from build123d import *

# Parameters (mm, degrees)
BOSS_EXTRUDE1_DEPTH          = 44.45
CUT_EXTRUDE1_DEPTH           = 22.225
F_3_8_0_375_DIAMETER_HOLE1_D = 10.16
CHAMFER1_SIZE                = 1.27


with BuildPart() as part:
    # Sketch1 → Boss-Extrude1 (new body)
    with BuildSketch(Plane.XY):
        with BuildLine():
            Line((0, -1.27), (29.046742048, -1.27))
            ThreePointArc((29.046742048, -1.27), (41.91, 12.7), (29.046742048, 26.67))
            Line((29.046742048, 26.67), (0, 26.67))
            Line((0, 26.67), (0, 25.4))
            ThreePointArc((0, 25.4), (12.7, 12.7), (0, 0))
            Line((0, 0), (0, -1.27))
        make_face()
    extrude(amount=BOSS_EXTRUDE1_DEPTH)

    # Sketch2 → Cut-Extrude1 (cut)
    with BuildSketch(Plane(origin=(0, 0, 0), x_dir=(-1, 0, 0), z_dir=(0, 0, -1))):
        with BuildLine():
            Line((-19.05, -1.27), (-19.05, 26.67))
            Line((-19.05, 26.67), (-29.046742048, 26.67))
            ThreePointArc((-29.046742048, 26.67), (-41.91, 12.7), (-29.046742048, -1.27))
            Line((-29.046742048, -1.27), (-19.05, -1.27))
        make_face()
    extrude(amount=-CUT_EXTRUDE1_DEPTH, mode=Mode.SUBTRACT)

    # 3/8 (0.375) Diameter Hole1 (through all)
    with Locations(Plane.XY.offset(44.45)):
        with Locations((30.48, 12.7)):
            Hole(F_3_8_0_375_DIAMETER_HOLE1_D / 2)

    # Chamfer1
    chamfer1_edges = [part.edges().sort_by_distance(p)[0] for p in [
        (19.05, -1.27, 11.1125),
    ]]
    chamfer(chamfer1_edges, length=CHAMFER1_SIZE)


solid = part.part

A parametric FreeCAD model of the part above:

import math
import FreeCAD as App
import Part
import Sketcher
Q = App.Units.Quantity


def edges_at(feature, points):
    """Names of the edges that pass closest to the given points."""
    edges = feature.Shape.Edges
    near = lambda p: min(range(len(edges)), key=lambda i: edges[i].distToShape(Part.Vertex(*p))[0])
    return sorted({f"Edge{near(p) + 1}" for p in points})

doc = App.newDocument("Part")
params = doc.addObject("Spreadsheet::Sheet", "Params")
for row, (alias, value) in enumerate([
    ("sketch1_radius", "0.5 in"),
    ("sketch1_height", "0.05 in"),
    ("pad1_length", "1.75 in"),
    ("sketch2_height", "1.1 in"),
    ("pocket1_length", "0.875 in"),
    ("sketch3_diameter", "0.4 in"),
    ("hole_diameter", "0.4 in"),
    ("chamfer_size", "0.05 in"),
], start=1):
    params.set(f"A{row}", alias)
    params.set(f"B{row}", "=" + value)
    params.setAlias(f"B{row}", alias)

body = doc.addObject("PartDesign::Body", "Body")

sketch1 = body.newObject("Sketcher::SketchObject", "Sketch")
sketch1.AttachmentSupport = (doc.getObject("XY_Plane"), [""])
sketch1.MapMode = "FlatFace"
sketch1.addGeometry([
    Part.LineSegment(App.Vector(0, -1.3, 0), App.Vector(29, -1.3, 0)),
    Part.ArcOfCircle(Part.Circle(App.Vector(27.9, 12.7, 0), App.Vector(0, 0, 1), 14), math.radians(-85), math.radians(85)),
    Part.LineSegment(App.Vector(29, 26.7, 0), App.Vector(0, 26.7, 0)),
    Part.LineSegment(App.Vector(0, 26.7, 0), App.Vector(0, 25.4, 0)),
    Part.ArcOfCircle(Part.Circle(App.Vector(0, 12.7, 0), App.Vector(0, 0, 1), 12.7), math.radians(-90), math.radians(90)),
    Part.LineSegment(App.Vector(0, 0, 0), App.Vector(0, -1.3, 0)),
], False)
sketch1.addConstraint([
    Sketcher.Constraint("Coincident", 0, 2, 1, 1),
    Sketcher.Constraint("Coincident", 1, 2, 2, 1),
    Sketcher.Constraint("Coincident", 2, 2, 3, 1),
    Sketcher.Constraint("Coincident", 3, 2, 4, 2),
    Sketcher.Constraint("Coincident", 4, 1, 5, 1),
    Sketcher.Constraint("Coincident", 5, 2, 0, 1),
    Sketcher.Constraint("Horizontal", 0),
    Sketcher.Constraint("Horizontal", 2),
    Sketcher.Constraint("Vertical", 3),
    Sketcher.Constraint("Vertical", 5),
    Sketcher.Constraint("Coincident", 4, 1, -1, 1),
    Sketcher.Constraint("PointOnObject", 4, 3, -2),
    Sketcher.Constraint("PointOnObject", 2, 2, -2),
    Sketcher.Constraint("Horizontal", 1, 3, 4, 3),
    Sketcher.Constraint("Vertical", 0, 2, 1, 2),
    Sketcher.Constraint("Radius", 4, Q("0.5 in")),
    Sketcher.Constraint("DistanceY", 3, 2, 3, 1, Q("0.05 in")),
    Sketcher.Constraint("Radius", 1, Q("14.017611 mm")),
    Sketcher.Constraint("DistanceX", 0, 1, 0, 2, Q("29.046742 mm")),
])
sketch1.setExpression("Constraints[15]", "Params.sketch1_radius")
sketch1.setExpression("Constraints[16]", "Params.sketch1_height")
pad1 = body.newObject("PartDesign::Pad", "Pad")
pad1.Profile = sketch1
pad1.setExpression("Length", "Params.pad1_length")

sketch2 = body.newObject("Sketcher::SketchObject", "Sketch001")
sketch2.AttachmentSupport = (doc.getObject("XY_Plane"), [""])
sketch2.MapMode = "FlatFace"
sketch2.addGeometry([
    Part.LineSegment(App.Vector(19, -1, 0), App.Vector(19, 27, 0)),
    Part.LineSegment(App.Vector(19, 27, 0), App.Vector(29, 27, 0)),
    Part.ArcOfCircle(Part.Circle(App.Vector(28, 13, 0), App.Vector(0, 0, 1), 14), math.radians(-85), math.radians(85)),
    Part.LineSegment(App.Vector(29, -1, 0), App.Vector(19, -1, 0)),
], False)
sketch2.addConstraint([
    Sketcher.Constraint("Coincident", 0, 2, 1, 1),
    Sketcher.Constraint("Coincident", 1, 2, 2, 2),
    Sketcher.Constraint("Coincident", 2, 1, 3, 1),
    Sketcher.Constraint("Coincident", 3, 2, 0, 1),
    Sketcher.Constraint("Vertical", 0),
    Sketcher.Constraint("Horizontal", 1),
    Sketcher.Constraint("Horizontal", 3),
    Sketcher.Constraint("Vertical", 1, 2, 2, 1),
    Sketcher.Constraint("DistanceY", 0, 1, 0, 2, Q("1.1 in")),
    Sketcher.Constraint("DistanceY", -1, 1, 2, 3, Q("0.5 in")),
    Sketcher.Constraint("DistanceX", -1, 1, 0, 2, Q("0.75 in")),
    Sketcher.Constraint("Radius", 2, Q("14.017611 mm")),
    Sketcher.Constraint("DistanceX", 1, 1, 1, 2, Q("9.996742 mm")),
])
sketch2.setExpression("Constraints[8]", "Params.sketch2_height")
pocket1 = body.newObject("PartDesign::Pocket", "Pocket")
pocket1.Profile = sketch2
pocket1.setExpression("Length", "Params.pocket1_length")
pocket1.Reversed = True

sketch3 = body.newObject("Sketcher::SketchObject", "Sketch002")
sketch3.AttachmentSupport = (doc.getObject("XY_Plane"), [""])
sketch3.MapMode = "FlatFace"
sketch3.AttachmentOffset = App.Placement(App.Vector(0, 0, 1.75 * 25.4), App.Rotation())
sketch3.addGeometry(Part.Circle(App.Vector(30, 13, 0), App.Vector(0, 0, 1), 5), False)
sketch3.addConstraint([
    Sketcher.Constraint("Diameter", 0, Q("0.4 in")),
    Sketcher.Constraint("DistanceX", -1, 1, 0, 3, Q("1.2 in")),
    Sketcher.Constraint("DistanceY", -1, 1, 0, 3, Q("0.5 in")),
])
sketch3.setExpression("Constraints[0]", "Params.sketch3_diameter")
doc.recompute()
hole = body.newObject("PartDesign::Hole", "Hole")
hole.Profile = sketch3
hole.ThreadType = "None"
hole.setExpression("Diameter", "Params.hole_diameter")
hole.DepthType = "ThroughAll"
doc.recompute()

chamfer = body.newObject("PartDesign::Chamfer", "Chamfer")
chamfer.Base = (hole, edges_at(hole, [(19.05, -1.27, 11.113)]))
chamfer.setExpression("Size", "Params.chamfer_size")

doc.recompute()
